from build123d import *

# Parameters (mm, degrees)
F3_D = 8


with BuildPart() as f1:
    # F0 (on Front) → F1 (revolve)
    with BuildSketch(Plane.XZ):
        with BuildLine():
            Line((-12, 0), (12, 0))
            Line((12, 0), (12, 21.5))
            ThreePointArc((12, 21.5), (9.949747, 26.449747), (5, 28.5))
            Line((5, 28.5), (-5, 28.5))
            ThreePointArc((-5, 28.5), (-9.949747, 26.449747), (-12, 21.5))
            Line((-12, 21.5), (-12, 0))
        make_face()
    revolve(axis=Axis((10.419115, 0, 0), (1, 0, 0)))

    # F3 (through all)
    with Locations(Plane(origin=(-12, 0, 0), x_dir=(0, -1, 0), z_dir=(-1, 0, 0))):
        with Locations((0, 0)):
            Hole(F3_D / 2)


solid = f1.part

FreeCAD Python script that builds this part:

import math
import FreeCAD as App
import Part
import Sketcher

V = App.Vector

doc = App.newDocument("Part")
body = doc.addObject("PartDesign::Body", "Body")

# Sketch on XZ plane
sketch1 = body.newObject("Sketcher::SketchObject", "Sketch")
sketch1.AttachmentSupport = (doc.getObject("XZ_Plane"), [""])
sketch1.MapMode = "FlatFace"
sketch1.addGeometry(Part.LineSegment(V(-12, 0, 0), V(12, 0, 0)), False)
sketch1.addGeometry(Part.LineSegment(V(12, 0, 0), V(12, 21.5, 0)), False)
sketch1.addGeometry(Part.ArcOfCircle(Part.Circle(V(4.999998, 21.499998, 0), V(0, 0, 1), 7.000002), math.radians(0.000013), math.radians(89.999987)), False)
sketch1.addGeometry(Part.LineSegment(V(5, 28.5, 0), V(-5, 28.5, 0)), False)
sketch1.addGeometry(Part.ArcOfCircle(Part.Circle(V(-4.999998, 21.499998, 0), V(0, 0, 1), 7.000002), math.radians(90.000013), math.radians(179.999987)), False)
sketch1.addGeometry(Part.LineSegment(V(-12, 21.5, 0), V(-12, 0, 0)), False)
sketch1.addConstraint(Sketcher.Constraint("Coincident", 0, 2, 1, 1))
sketch1.addConstraint(Sketcher.Constraint("Tangent", 1, 2, 2, 1))
sketch1.addConstraint(Sketcher.Constraint("Tangent", 2, 2, 3, 1))
sketch1.addConstraint(Sketcher.Constraint("Tangent", 3, 2, 4, 1))
sketch1.addConstraint(Sketcher.Constraint("Tangent", 4, 2, 5, 1))
sketch1.addConstraint(Sketcher.Constraint("Coincident", 5, 2, 0, 1))
sketch1.addConstraint(Sketcher.Constraint("Horizontal", 0))
sketch1.addConstraint(Sketcher.Constraint("Vertical", 1))
sketch1.addConstraint(Sketcher.Constraint("Horizontal", 3))
sketch1.addConstraint(Sketcher.Constraint("Vertical", 5))
sketch1.addConstraint(Sketcher.Constraint("Equal", 2, 4))
sketch1.addConstraint(Sketcher.Constraint("Symmetric", 0, 2, 5, 2, -1, 1))
sketch1.addConstraint(Sketcher.Constraint("Radius", 2, 7.000002))
sketch1.addConstraint(Sketcher.Constraint("DistanceX", 0, 1, 0, 2, 24.0))
sketch1.addConstraint(Sketcher.Constraint("DistanceY", 1, 1, 1, 2, 21.5))
revolution = body.newObject("PartDesign::Revolution", "Revolution")
revolution.Profile = sketch1
revolution.ReferenceAxis = (sketch1, ["H_Axis"])
revolution.Angle = 360

# Sketch on YZ plane
sketch2 = body.newObject("Sketcher::SketchObject", "Sketch001")
sketch2.AttachmentSupport = (doc.getObject("YZ_Plane"), [""])
sketch2.MapMode = "FlatFace"
sketch2.AttachmentOffset = App.Placement(V(0, 0, -12), App.Rotation())
sketch2.addGeometry(Part.Circle(V(0, 0, 0), V(0, 0, 1), 4), False)
sketch2.addConstraint(Sketcher.Constraint("Coincident", 0, 3, -1, 1))
sketch2.addConstraint(Sketcher.Constraint("Diameter", 0, 8.0))
doc.recompute()
hole = body.newObject("PartDesign::Hole", "Hole")
hole.Profile = sketch2
hole.ThreadType = "None"
hole.Diameter = 8
hole.DepthType = "ThroughAll"
hole.Reversed = True

doc.recompute()
